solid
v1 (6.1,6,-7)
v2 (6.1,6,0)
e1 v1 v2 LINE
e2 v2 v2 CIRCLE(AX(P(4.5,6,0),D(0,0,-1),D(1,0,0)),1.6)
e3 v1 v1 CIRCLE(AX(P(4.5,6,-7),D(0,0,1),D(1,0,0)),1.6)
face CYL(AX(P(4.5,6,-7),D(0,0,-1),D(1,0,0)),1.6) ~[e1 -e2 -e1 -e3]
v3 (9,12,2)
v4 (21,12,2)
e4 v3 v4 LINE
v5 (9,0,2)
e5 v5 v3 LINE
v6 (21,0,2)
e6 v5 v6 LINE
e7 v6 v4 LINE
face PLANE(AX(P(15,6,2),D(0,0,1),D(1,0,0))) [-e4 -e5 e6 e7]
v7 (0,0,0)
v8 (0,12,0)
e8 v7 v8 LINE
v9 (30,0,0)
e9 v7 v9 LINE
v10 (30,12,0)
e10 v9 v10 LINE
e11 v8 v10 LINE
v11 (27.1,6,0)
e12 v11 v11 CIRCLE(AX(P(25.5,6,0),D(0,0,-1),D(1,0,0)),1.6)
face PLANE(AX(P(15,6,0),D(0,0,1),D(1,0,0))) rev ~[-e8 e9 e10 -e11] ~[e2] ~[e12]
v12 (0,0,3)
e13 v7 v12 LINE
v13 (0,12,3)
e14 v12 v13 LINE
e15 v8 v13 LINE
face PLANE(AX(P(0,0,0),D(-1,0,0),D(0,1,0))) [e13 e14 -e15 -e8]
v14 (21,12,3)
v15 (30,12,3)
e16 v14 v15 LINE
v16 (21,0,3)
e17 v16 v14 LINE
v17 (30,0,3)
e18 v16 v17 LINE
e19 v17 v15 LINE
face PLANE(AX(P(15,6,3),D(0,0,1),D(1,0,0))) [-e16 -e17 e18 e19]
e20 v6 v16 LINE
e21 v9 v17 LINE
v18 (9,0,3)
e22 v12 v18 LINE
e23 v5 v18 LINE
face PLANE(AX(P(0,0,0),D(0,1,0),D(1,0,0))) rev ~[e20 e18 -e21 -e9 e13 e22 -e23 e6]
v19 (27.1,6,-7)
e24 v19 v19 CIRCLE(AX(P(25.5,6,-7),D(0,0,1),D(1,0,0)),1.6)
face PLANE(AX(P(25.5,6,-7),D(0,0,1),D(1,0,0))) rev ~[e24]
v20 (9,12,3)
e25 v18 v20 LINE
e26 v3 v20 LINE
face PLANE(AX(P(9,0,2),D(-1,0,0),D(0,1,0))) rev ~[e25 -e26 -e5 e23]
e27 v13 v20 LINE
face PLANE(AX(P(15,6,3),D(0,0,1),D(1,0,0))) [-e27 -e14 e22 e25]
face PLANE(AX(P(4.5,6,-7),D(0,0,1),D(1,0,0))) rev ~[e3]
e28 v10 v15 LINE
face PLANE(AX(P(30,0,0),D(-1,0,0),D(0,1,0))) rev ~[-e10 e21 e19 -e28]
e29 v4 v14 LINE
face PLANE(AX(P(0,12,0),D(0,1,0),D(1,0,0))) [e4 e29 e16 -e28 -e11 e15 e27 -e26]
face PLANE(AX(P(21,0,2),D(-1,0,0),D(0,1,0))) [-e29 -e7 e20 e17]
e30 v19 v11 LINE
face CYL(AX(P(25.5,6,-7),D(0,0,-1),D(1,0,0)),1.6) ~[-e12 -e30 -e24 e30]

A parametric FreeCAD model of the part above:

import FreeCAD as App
import Part
import Sketcher

V = App.Vector
Q = App.Units.Quantity


def add_polygon(sketch, points):
    """Adds a closed chain of lines whose ends are joined by coincident constraints."""
    first, n = sketch.GeometryCount, len(points)
    for a, b in zip(points, points[1:] + points[:1]):
        sketch.addGeometry(Part.LineSegment(App.Vector(*a, 0), App.Vector(*b, 0)), False)
    for i in range(n):
        sketch.addConstraint(Sketcher.Constraint("Coincident", first + i, 2, first + (i + 1) % n, 1))

doc = App.newDocument("Part")
params = doc.addObject("Spreadsheet::Sheet", "Params")
for row, (alias, value) in enumerate([
    ("sketch1_diameter", "3.2 mm"),
    ("pad1_length", "10 mm"),
    ("sketch2_width", "12 mm"),
    ("pad2_length", "1 mm"),
    ("sketch3_width", "30 mm"),
    ("sketch3_height", "12 mm"),
    ("pad3_length", "3 mm"),
    ("sketch4_diameter", "3.2 mm"),
    ("pad4_length", "10 mm"),
], start=1):
    params.set(f"A{row}", alias)
    params.set(f"B{row}", "=" + value)
    params.setAlias(f"B{row}", alias)

body = doc.addObject("PartDesign::Body", "Body")

sketch1 = doc.addObject("Sketcher::SketchObject", "Sketch")
body.addObject(sketch1)
sketch1.AttachmentSupport = (doc.XY_Plane, [""])
sketch1.MapMode = "FlatFace"
sketch1.AttachmentOffset = App.Placement(V(0, 0, -7), App.Rotation())
sketch1.addGeometry(Part.Circle(V(25.5, 6, 0), V(0, 0, 1), 1.6), False)
sketch1.addConstraint([
    Sketcher.Constraint("Diameter", 0, Q("3.2 mm")),
    Sketcher.Constraint("DistanceY", -1, 1, 0, 3, Q("6 mm")),
    Sketcher.Constraint("DistanceX", -1, 1, 0, 3, Q("25.5 mm")),
])
sketch1.setExpression("Constraints[0]", "Params.sketch1_diameter")
pad1 = doc.addObject("PartDesign::Pad", "Pad")
body.addObject(pad1)
pad1.Profile = sketch1
pad1.setExpression("Length", "Params.pad1_length")
body2 = doc.addObject("PartDesign::Body", "Body001")

sketch2 = doc.addObject("Sketcher::SketchObject", "Sketch001")
body2.addObject(sketch2)
sketch2.AttachmentSupport = (doc.getObject("XY_Plane001"), [""])
sketch2.MapMode = "FlatFace"
sketch2.AttachmentOffset = App.Placement(V(0, 0, 2), App.Rotation())
add_polygon(sketch2, [(9, 12), (9, 0), (21, 0), (21, 12)])
sketch2.addConstraint([
    Sketcher.Constraint("Vertical", 0),
    Sketcher.Constraint("Horizontal", 1),
    Sketcher.Constraint("Vertical", 2),
    Sketcher.Constraint("Horizontal", 3),
    Sketcher.Constraint("PointOnObject", 0, 2, -1),
    Sketcher.Constraint("Equal", 3, 0),
    Sketcher.Constraint("DistanceX", 1, 1, 1, 2, Q("12 mm")),
    Sketcher.Constraint("DistanceX", -1, 1, 0, 2, Q("9 mm")),
])
sketch2.setExpression("Constraints[10]", "Params.sketch2_width")
pad2 = doc.addObject("PartDesign::Pad", "Pad001")
body2.addObject(pad2)
pad2.Profile = sketch2
pad2.setExpression("Length", "Params.pad2_length")
body3 = doc.addObject("PartDesign::Body", "Body002")

sketch3 = doc.addObject("Sketcher::SketchObject", "Sketch002")
body3.addObject(sketch3)
sketch3.AttachmentSupport = (doc.getObject("XY_Plane002"), [""])
sketch3.MapMode = "FlatFace"
add_polygon(sketch3, [(0, 12), (0, 0), (30, 0), (30, 12)])
sketch3.addConstraint([
    Sketcher.Constraint("Vertical", 0),
    Sketcher.Constraint("Horizontal", 1),
    Sketcher.Constraint("Vertical", 2),
    Sketcher.Constraint("Horizontal", 3),
    Sketcher.Constraint("Coincident", 0, 2, -1, 1),
    Sketcher.Constraint("DistanceX", 1, 1, 1, 2, Q("30 mm")),
    Sketcher.Constraint("DistanceY", 0, 2, 0, 1, Q("12 mm")),
])
sketch3.setExpression("Constraints[9]", "Params.sketch3_width")
sketch3.setExpression("Constraints[10]", "Params.sketch3_height")
pad3 = doc.addObject("PartDesign::Pad", "Pad002")
body3.addObject(pad3)
pad3.Profile = sketch3
pad3.setExpression("Length", "Params.pad3_length")
doc.recompute()

boolean = doc.addObject("PartDesign::Boolean", "Boolean")
body3.addObject(boolean)
boolean.Type = "Cut"
boolean.addObjects([body2])
doc.recompute()

boolean2 = doc.addObject("PartDesign::Boolean", "Boolean001")
body3.addObject(boolean2)
boolean2.Type = "Fuse"
boolean2.addObjects([body])
body4 = doc.addObject("PartDesign::Body", "Body003")

sketch4 = doc.addObject("Sketcher::SketchObject", "Sketch003")
body4.addObject(sketch4)
sketch4.AttachmentSupport = (doc.getObject("XY_Plane003"), [""])
sketch4.MapMode = "FlatFace"
sketch4.AttachmentOffset = App.Placement(V(0, 0, -7), App.Rotation())
sketch4.addGeometry(Part.Circle(V(4.5, 6, 0), V(0, 0, 1), 1.6), False)
sketch4.addConstraint([
    Sketcher.Constraint("Diameter", 0, Q("3.2 mm")),
    Sketcher.Constraint("DistanceY", -1, 1, 0, 3, Q("6 mm")),
    Sketcher.Constraint("DistanceX", -1, 1, 0, 3, Q("4.5 mm")),
])
sketch4.setExpression("Constraints[0]", "Params.sketch4_diameter")
pad4 = doc.addObject("PartDesign::Pad", "Pad003")
body4.addObject(pad4)
pad4.Profile = sketch4
pad4.setExpression("Length", "Params.pad4_length")
doc.recompute()

boolean3 = doc.addObject("PartDesign::Boolean", "Boolean002")
body4.addObject(boolean3)
boolean3.Type = "Fuse"
boolean3.addObjects([body3])

doc.recompute()
